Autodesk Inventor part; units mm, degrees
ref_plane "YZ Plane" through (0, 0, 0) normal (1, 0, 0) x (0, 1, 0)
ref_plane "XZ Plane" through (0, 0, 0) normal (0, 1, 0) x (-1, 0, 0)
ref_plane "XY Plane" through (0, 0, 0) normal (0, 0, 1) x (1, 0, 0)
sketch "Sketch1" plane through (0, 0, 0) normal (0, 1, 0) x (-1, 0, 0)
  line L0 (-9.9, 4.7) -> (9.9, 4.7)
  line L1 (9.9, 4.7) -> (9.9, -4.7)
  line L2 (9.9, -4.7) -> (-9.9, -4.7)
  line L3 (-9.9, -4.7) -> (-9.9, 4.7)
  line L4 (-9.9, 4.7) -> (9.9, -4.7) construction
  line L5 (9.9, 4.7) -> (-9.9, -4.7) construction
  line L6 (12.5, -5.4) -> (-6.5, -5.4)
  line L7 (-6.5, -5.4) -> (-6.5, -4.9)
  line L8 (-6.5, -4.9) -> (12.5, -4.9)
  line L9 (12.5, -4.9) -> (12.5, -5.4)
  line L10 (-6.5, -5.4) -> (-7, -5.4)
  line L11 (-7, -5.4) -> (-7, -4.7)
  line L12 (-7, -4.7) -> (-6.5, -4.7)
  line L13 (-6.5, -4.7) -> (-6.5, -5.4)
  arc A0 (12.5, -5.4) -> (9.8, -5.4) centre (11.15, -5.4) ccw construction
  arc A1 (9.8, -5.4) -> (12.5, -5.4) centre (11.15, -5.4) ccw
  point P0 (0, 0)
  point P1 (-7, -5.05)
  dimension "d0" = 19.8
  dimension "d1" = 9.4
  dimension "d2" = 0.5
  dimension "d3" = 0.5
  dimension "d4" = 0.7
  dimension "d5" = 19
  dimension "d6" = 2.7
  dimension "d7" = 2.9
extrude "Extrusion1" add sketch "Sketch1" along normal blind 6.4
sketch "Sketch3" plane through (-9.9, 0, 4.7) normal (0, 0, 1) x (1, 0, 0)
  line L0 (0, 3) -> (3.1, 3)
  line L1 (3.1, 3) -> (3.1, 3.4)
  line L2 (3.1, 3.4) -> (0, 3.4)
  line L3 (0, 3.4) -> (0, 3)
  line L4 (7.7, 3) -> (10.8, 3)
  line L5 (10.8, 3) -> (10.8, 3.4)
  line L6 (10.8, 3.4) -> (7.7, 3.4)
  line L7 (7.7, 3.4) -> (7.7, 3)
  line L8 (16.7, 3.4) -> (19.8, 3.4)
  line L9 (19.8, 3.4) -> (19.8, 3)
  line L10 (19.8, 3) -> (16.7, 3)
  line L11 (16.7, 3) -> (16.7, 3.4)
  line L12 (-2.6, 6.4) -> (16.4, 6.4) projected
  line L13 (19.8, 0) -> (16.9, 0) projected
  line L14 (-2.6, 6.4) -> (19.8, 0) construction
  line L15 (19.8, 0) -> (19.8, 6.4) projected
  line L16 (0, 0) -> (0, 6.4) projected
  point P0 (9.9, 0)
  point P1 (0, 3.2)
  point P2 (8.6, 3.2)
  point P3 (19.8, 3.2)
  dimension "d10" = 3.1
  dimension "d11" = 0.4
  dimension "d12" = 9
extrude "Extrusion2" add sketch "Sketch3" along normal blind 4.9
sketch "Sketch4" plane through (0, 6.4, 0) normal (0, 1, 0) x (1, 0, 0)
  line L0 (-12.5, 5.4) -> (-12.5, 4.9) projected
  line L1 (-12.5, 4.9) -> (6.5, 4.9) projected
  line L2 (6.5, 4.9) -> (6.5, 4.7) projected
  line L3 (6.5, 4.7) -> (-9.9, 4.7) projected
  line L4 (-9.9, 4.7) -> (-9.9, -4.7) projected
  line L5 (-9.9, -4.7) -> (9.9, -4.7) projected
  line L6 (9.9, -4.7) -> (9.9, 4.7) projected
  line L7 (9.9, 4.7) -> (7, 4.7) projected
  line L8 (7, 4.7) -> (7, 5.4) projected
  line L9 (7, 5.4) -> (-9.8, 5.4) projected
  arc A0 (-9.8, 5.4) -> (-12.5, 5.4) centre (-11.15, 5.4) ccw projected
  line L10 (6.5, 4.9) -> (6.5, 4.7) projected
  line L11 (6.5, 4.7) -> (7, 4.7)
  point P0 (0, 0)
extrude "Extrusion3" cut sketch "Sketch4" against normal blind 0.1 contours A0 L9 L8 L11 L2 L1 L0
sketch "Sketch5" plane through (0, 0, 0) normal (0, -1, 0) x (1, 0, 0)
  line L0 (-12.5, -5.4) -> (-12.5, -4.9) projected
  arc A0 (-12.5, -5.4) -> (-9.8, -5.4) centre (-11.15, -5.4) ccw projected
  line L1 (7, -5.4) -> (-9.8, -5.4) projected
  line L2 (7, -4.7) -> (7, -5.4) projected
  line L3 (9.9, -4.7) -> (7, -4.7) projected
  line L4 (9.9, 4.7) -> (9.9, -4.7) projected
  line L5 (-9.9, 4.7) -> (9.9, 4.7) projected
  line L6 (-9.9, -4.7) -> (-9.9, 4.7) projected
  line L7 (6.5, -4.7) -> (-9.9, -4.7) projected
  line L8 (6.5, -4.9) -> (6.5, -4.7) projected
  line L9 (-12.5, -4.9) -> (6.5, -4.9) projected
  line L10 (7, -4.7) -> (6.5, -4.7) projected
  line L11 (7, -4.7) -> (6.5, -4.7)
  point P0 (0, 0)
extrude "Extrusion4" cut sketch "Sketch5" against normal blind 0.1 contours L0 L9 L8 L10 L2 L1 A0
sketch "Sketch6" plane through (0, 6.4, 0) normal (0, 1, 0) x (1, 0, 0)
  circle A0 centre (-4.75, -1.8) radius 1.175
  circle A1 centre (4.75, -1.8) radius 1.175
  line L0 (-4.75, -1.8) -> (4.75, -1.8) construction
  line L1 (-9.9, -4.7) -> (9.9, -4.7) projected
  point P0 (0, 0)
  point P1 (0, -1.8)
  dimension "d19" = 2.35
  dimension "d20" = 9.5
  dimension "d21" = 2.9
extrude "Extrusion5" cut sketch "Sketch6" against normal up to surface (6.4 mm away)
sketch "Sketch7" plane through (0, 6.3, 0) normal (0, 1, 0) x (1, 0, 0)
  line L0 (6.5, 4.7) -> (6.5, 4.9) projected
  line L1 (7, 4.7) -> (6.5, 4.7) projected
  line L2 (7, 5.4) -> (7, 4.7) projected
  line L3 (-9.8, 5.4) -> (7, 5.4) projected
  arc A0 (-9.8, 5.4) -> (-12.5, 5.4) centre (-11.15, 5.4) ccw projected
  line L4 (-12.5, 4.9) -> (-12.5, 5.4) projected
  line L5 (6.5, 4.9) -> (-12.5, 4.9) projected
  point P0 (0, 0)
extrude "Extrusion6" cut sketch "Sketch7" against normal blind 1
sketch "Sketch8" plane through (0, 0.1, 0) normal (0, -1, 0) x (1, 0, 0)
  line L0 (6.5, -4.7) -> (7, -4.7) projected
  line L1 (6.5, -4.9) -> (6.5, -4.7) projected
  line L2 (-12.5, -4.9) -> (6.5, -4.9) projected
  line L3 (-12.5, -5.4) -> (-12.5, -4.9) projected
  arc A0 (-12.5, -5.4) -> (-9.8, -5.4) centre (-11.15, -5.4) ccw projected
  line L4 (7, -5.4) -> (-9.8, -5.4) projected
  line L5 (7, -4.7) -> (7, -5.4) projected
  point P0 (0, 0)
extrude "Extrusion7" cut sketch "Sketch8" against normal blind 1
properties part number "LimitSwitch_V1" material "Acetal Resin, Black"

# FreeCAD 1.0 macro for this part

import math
import FreeCAD as App
import Part
import Sketcher

V = App.Vector


def add_polygon(sketch, points):
    """Adds a closed chain of lines whose ends are joined by coincident constraints."""
    first, n = sketch.GeometryCount, len(points)
    for a, b in zip(points, points[1:] + points[:1]):
        sketch.addGeometry(Part.LineSegment(App.Vector(*a, 0), App.Vector(*b, 0)), False)
    for i in range(n):
        sketch.addConstraint(Sketcher.Constraint("Coincident", first + i, 2, first + (i + 1) % n, 1))

doc = App.newDocument("Part")
body = doc.addObject("PartDesign::Body", "Body")

# Sketch on XZ plane
sketch1 = body.newObject("Sketcher::SketchObject", "Sketch")
sketch1.AttachmentSupport = (doc.getObject("XZ_Plane"), [""])
sketch1.MapMode = "FlatFace"
sketch1.addGeometry([
    Part.LineSegment(V(-9.9, 4.7, 0), V(9.9, 4.7, 0)),  # 0
    Part.LineSegment(V(9.9, 4.7, 0), V(9.9, -4.7, 0)),  # 1
    Part.LineSegment(V(9.9, -4.7, 0), V(7, -4.7, 0)),  # 2
    Part.LineSegment(V(7, -4.7, 0), V(7, -5.4, 0)),  # 3
    Part.LineSegment(V(7, -5.4, 0), V(-9.8, -5.4, 0)),  # 4
    Part.ArcOfCircle(Part.Circle(V(-11.15, -5.4, 0), V(0, 0, 1), 1.35), math.radians(180), math.radians(360)),  # 5
    Part.LineSegment(V(-12.5, -5.4, 0), V(-12.5, -4.9, 0)),  # 6
    Part.LineSegment(V(-12.5, -4.9, 0), V(6.5, -4.9, 0)),  # 7
    Part.LineSegment(V(6.5, -4.9, 0), V(6.5, -4.7, 0)),  # 8
    Part.LineSegment(V(6.5, -4.7, 0), V(-9.9, -4.7, 0)),  # 9
    Part.LineSegment(V(-9.9, -4.7, 0), V(-9.9, 4.7, 0)),  # 10
], False)
sketch1.addConstraint([
    Sketcher.Constraint("Coincident", 0, 2, 1, 1),
    Sketcher.Constraint("Coincident", 1, 2, 2, 1),
    Sketcher.Constraint("Coincident", 2, 2, 3, 1),
    Sketcher.Constraint("Coincident", 3, 2, 4, 1),
    Sketcher.Constraint("Coincident", 4, 2, 5, 2),
    Sketcher.Constraint("Tangent", 5, 1, 6, 1),
    Sketcher.Constraint("Coincident", 6, 2, 7, 1),
    Sketcher.Constraint("Coincident", 7, 2, 8, 1),
    Sketcher.Constraint("Coincident", 8, 2, 9, 1),
    Sketcher.Constraint("Coincident", 9, 2, 10, 1),
    Sketcher.Constraint("Coincident", 10, 2, 0, 1),
    Sketcher.Constraint("Horizontal", 0),
    Sketcher.Constraint("Vertical", 1),
    Sketcher.Constraint("Horizontal", 2),
    Sketcher.Constraint("Vertical", 3),
    Sketcher.Constraint("Horizontal", 4),
    Sketcher.Constraint("Vertical", 6),
    Sketcher.Constraint("Horizontal", 7),
    Sketcher.Constraint("Vertical", 8),
    Sketcher.Constraint("Horizontal", 9),
    Sketcher.Constraint("Vertical", 10),
    Sketcher.Constraint("Symmetric", 0, 2, 9, 2, -1, 1),
    Sketcher.Constraint("Horizontal", 5, 3, 3, 2),
    Sketcher.Constraint("Horizontal", 2, 2, 8, 2),
    Sketcher.Constraint("DistanceX", 7, 1, 7, 2, 19.0),
    Sketcher.Constraint("Radius", 5, 1.35),
    Sketcher.Constraint("DistanceX", 0, 1, 0, 2, 19.8),
    Sketcher.Constraint("DistanceX", 2, 2, 2, 1, 2.9),
    Sketcher.Constraint("DistanceY", 1, 2, 1, 1, 9.4),
    Sketcher.Constraint("DistanceY", 3, 2, 3, 1, 0.7),
    Sketcher.Constraint("DistanceY", 6, 1, 6, 2, 0.5),
    Sketcher.Constraint("DistanceX", 7, 2, 2, 2, 0.5),
])
pad1 = body.newObject("PartDesign::Pad", "Pad")
pad1.Profile = sketch1
pad1.Length = 6.4
pad1.Reversed = True

# Sketch on XY plane
sketch2 = body.newObject("Sketcher::SketchObject", "Sketch001")
sketch2.AttachmentSupport = (doc.getObject("XY_Plane"), [""])
sketch2.MapMode = "FlatFace"
sketch2.AttachmentOffset = App.Placement(V(0, 0, 4.7), App.Rotation())
add_polygon(sketch2, [(-9.9, 3.4), (-9.9, 3), (-6.8, 3), (-6.8, 3.4)])  # lines 0-3
add_polygon(sketch2, [(-2.2, 3.4), (-2.2, 3), (0.9, 3), (0.9, 3.4)])  # lines 4-7
add_polygon(sketch2, [(9.9, 3.4), (6.8, 3.4), (6.8, 3), (9.9, 3)])  # lines 8-11
sketch2.addConstraint([
    Sketcher.Constraint("Vertical", 0),
    Sketcher.Constraint("Horizontal", 1),
    Sketcher.Constraint("Vertical", 2),
    Sketcher.Constraint("Horizontal", 3),
    Sketcher.Constraint("Vertical", 4),
    Sketcher.Constraint("Horizontal", 5),
    Sketcher.Constraint("Vertical", 6),
    Sketcher.Constraint("Horizontal", 7),
    Sketcher.Constraint("Horizontal", 8),
    Sketcher.Constraint("Vertical", 9),
    Sketcher.Constraint("Horizontal", 10),
    Sketcher.Constraint("Vertical", 11),
    Sketcher.Constraint("Symmetric", 2, 2, 8, 2, -2),
    Sketcher.Constraint("Symmetric", 0, 2, 10, 2, -2),
    Sketcher.Constraint("Horizontal", 1, 2, 4, 2),
    Sketcher.Constraint("Horizontal", 3, 2, 6, 2),
    Sketcher.Constraint("Equal", 3, 5),
    Sketcher.Constraint("DistanceX", 1, 1, 1, 2, 3.1),
    Sketcher.Constraint("DistanceY", 0, 2, 0, 1, 0.4),
    Sketcher.Constraint("DistanceX", 7, 2, 8, 2, 9.0),
    Sketcher.Constraint("DistanceY", -1, 1, 0, 2, 3.0),
    Sketcher.Constraint("DistanceX", 0, 2, -1, 1, 9.9),
])
pad2 = body.newObject("PartDesign::Pad", "Pad001")
pad2.Profile = sketch2
pad2.Length = 4.9

# Sketch on XZ plane
sketch3 = body.newObject("Sketcher::SketchObject", "Sketch002")
sketch3.AttachmentSupport = (doc.getObject("XZ_Plane"), [""])
sketch3.MapMode = "FlatFace"
sketch3.AttachmentOffset = App.Placement(V(0, 0, -6.4), App.Rotation())
sketch3.addGeometry([
    Part.ArcOfCircle(Part.Circle(V(-11.15, -5.4, 0), V(0, 0, 1), 1.35), math.radians(180), math.radians(360)),  # 0
    Part.LineSegment(V(-12.5, -5.4, 0), V(-12.5, -4.9, 0)),  # 1
    Part.LineSegment(V(-12.5, -4.9, 0), V(6.5, -4.9, 0)),  # 2
    Part.LineSegment(V(6.5, -4.9, 0), V(6.5, -4.7, 0)),  # 3
    Part.LineSegment(V(6.5, -4.7, 0), V(7, -4.7, 0)),  # 4
    Part.LineSegment(V(7, -4.7, 0), V(7, -5.4, 0)),  # 5
    Part.LineSegment(V(7, -5.4, 0), V(-9.8, -5.4, 0)),  # 6
], False)
sketch3.addConstraint([
    Sketcher.Constraint("Tangent", 0, 1, 1, 1),
    Sketcher.Constraint("Coincident", 1, 2, 2, 1),
    Sketcher.Constraint("Coincident", 2, 2, 3, 1),
    Sketcher.Constraint("Coincident", 3, 2, 4, 1),
    Sketcher.Constraint("Coincident", 4, 2, 5, 1),
    Sketcher.Constraint("Coincident", 5, 2, 6, 1),
    Sketcher.Constraint("Coincident", 6, 2, 0, 2),
    Sketcher.Constraint("Vertical", 1),
    Sketcher.Constraint("Horizontal", 2),
    Sketcher.Constraint("Vertical", 3),
    Sketcher.Constraint("Horizontal", 4),
    Sketcher.Constraint("Vertical", 5),
    Sketcher.Constraint("Horizontal", 6),
    Sketcher.Constraint("Horizontal", 0, 1, 5, 2),
    Sketcher.Constraint("Equal", 4, 1),
    Sketcher.Constraint("DistanceX", 2, 1, 2, 2, 19.0),
    Sketcher.Constraint("Radius", 0, 1.35),
    Sketcher.Constraint("DistanceX", 4, 1, 4, 2, 0.5),
    Sketcher.Constraint("DistanceY", 3, 1, 3, 2, 0.2),
    Sketcher.Constraint("DistanceX", -1, 1, 4, 2, 7.0),
    Sketcher.Constraint("DistanceY", 0, 3, -1, 1, 5.4),
])
pocket1 = body.newObject("PartDesign::Pocket", "Pocket")
pocket1.Profile = sketch3
pocket1.Length = 0.1
pocket1.Reversed = True

# Sketch on XZ plane
sketch4 = body.newObject("Sketcher::SketchObject", "Sketch003")
sketch4.AttachmentSupport = (doc.getObject("XZ_Plane"), [""])
sketch4.MapMode = "FlatFace"
sketch4.addGeometry([
    Part.LineSegment(V(-12.5, -4.9, 0), V(-12.5, -5.4, 0)),  # 0
    Part.ArcOfCircle(Part.Circle(V(-11.15, -5.4, 0), V(0, 0, 1), 1.35), math.radians(180), math.radians(360)),  # 1
    Part.LineSegment(V(-9.8, -5.4, 0), V(7, -5.4, 0)),  # 2
    Part.LineSegment(V(7, -5.4, 0), V(7, -4.7, 0)),  # 3
    Part.LineSegment(V(7, -4.7, 0), V(6.5, -4.7, 0)),  # 4
    Part.LineSegment(V(6.5, -4.7, 0), V(6.5, -4.9, 0)),  # 5
    Part.LineSegment(V(6.5, -4.9, 0), V(-12.5, -4.9, 0)),  # 6
], False)
sketch4.addConstraint([
    Sketcher.Constraint("Tangent", 0, 2, 1, 1),
    Sketcher.Constraint("Coincident", 1, 2, 2, 1),
    Sketcher.Constraint("Coincident", 2, 2, 3, 1),
    Sketcher.Constraint("Coincident", 3, 2, 4, 1),
    Sketcher.Constraint("Coincident", 4, 2, 5, 1),
    Sketcher.Constraint("Coincident", 5, 2, 6, 1),
    Sketcher.Constraint("Coincident", 6, 2, 0, 1),
    Sketcher.Constraint("Vertical", 0),
    Sketcher.Constraint("Horizontal", 2),
    Sketcher.Constraint("Vertical", 3),
    Sketcher.Constraint("Horizontal", 4),
    Sketcher.Constraint("Vertical", 5),
    Sketcher.Constraint("Horizontal", 6),
    Sketcher.Constraint("Horizontal", 0, 2, 1, 2),
    Sketcher.Constraint("Equal", 4, 0),
    Sketcher.Constraint("DistanceX", 6, 2, 6, 1, 19.0),
    Sketcher.Constraint("Radius", 1, 1.35),
    Sketcher.Constraint("DistanceX", 2, 1, 2, 2, 16.8),
    Sketcher.Constraint("DistanceY", 3, 1, 3, 2, 0.7),
    Sketcher.Constraint("DistanceX", -1, 1, 2, 2, 7.0),
    Sketcher.Constraint("DistanceY", 1, 3, -1, 1, 5.4),
])
pocket2 = body.newObject("PartDesign::Pocket", "Pocket001")
pocket2.Profile = sketch4
pocket2.Length = 0.1

# Sketch on XZ plane
sketch5 = body.newObject("Sketcher::SketchObject", "Sketch004")
sketch5.AttachmentSupport = (doc.getObject("XZ_Plane"), [""])
sketch5.MapMode = "FlatFace"
sketch5.AttachmentOffset = App.Placement(V(0, 0, -6.4), App.Rotation())
sketch5.addGeometry([
    Part.Circle(V(-4.8, 1.8, 0), V(0, 0, 1), 1.2),
    Part.Circle(V(4.8, 1.8, 0), V(0, 0, 1), 1.2),
], False)
sketch5.addConstraint([
    Sketcher.Constraint("Equal", 0, 1),
    Sketcher.Constraint("Symmetric", 0, 3, 1, 3, -2),
    Sketcher.Constraint("Diameter", 0, 2.35),
    Sketcher.Constraint("DistanceX", 0, 3, 1, 3, 9.5),
    Sketcher.Constraint("DistanceY", -1, 1, 0, 3, 1.8),
])
pocket3 = body.newObject("PartDesign::Pocket", "Pocket002")
pocket3.Profile = sketch5
pocket3.Length = 6.4
pocket3.Reversed = True

# Sketch on XZ plane
sketch6 = body.newObject("Sketcher::SketchObject", "Sketch005")
sketch6.AttachmentSupport = (doc.getObject("XZ_Plane"), [""])
sketch6.MapMode = "FlatFace"
sketch6.AttachmentOffset = App.Placement(V(0, 0, -6.3), App.Rotation())
sketch6.addGeometry([
    Part.LineSegment(V(6.5, -4.9, 0), V(6.5, -4.7, 0)),  # 0
    Part.LineSegment(V(6.5, -4.7, 0), V(7, -4.7, 0)),  # 1
    Part.LineSegment(V(7, -4.7, 0), V(7, -5.4, 0)),  # 2
    Part.LineSegment(V(7, -5.4, 0), V(-9.8, -5.4, 0)),  # 3
    Part.ArcOfCircle(Part.Circle(V(-11.15, -5.4, 0), V(0, 0, 1), 1.35), math.radians(180), math.radians(360)),  # 4
    Part.LineSegment(V(-12.5, -5.4, 0), V(-12.5, -4.9, 0)),  # 5
    Part.LineSegment(V(-12.5, -4.9, 0), V(6.5, -4.9, 0)),  # 6
], False)
sketch6.addConstraint([
    Sketcher.Constraint("Coincident", 0, 2, 1, 1),
    Sketcher.Constraint("Coincident", 1, 2, 2, 1),
    Sketcher.Constraint("Coincident", 2, 2, 3, 1),
    Sketcher.Constraint("Coincident", 3, 2, 4, 2),
    Sketcher.Constraint("Tangent", 4, 1, 5, 1),
    Sketcher.Constraint("Coincident", 5, 2, 6, 1),
    Sketcher.Constraint("Coincident", 6, 2, 0, 1),
    Sketcher.Constraint("Vertical", 0),
    Sketcher.Constraint("Horizontal", 1),
    Sketcher.Constraint("Vertical", 2),
    Sketcher.Constraint("Horizontal", 3),
    Sketcher.Constraint("Vertical", 5),
    Sketcher.Constraint("Horizontal", 6),
    Sketcher.Constraint("Horizontal", 4, 3, 2, 2),
    Sketcher.Constraint("Equal", 1, 5),
    Sketcher.Constraint("DistanceX", 6, 1, 6, 2, 19.0),
    Sketcher.Constraint("Radius", 4, 1.35),
    Sketcher.Constraint("DistanceX", 1, 1, 1, 2, 0.5),
    Sketcher.Constraint("DistanceY", 0, 1, 0, 2, 0.2),
    Sketcher.Constraint("DistanceX", -1, 1, 1, 2, 7.0),
    Sketcher.Constraint("DistanceY", 4, 3, -1, 1, 5.4),
])
pocket4 = body.newObject("PartDesign::Pocket", "Pocket003")
pocket4.Profile = sketch6
pocket4.Length = 1
pocket4.Reversed = True

# Sketch on XZ plane
sketch7 = body.newObject("Sketcher::SketchObject", "Sketch006")
sketch7.AttachmentSupport = (doc.getObject("XZ_Plane"), [""])
sketch7.MapMode = "FlatFace"
sketch7.AttachmentOffset = App.Placement(V(0, 0, -0.1), App.Rotation())
sketch7.addGeometry([
    Part.LineSegment(V(7, -4.7, 0), V(6.5, -4.7, 0)),  # 0
    Part.LineSegment(V(6.5, -4.7, 0), V(6.5, -4.9, 0)),  # 1
    Part.LineSegment(V(6.5, -4.9, 0), V(-12.5, -4.9, 0)),  # 2
    Part.LineSegment(V(-12.5, -4.9, 0), V(-12.5, -5.4, 0)),  # 3
    Part.ArcOfCircle(Part.Circle(V(-11.15, -5.4, 0), V(0, 0, 1), 1.35), math.radians(180), math.radians(360)),  # 4
    Part.LineSegment(V(-9.8, -5.4, 0), V(7, -5.4, 0)),  # 5
    Part.LineSegment(V(7, -5.4, 0), V(7, -4.7, 0)),  # 6
], False)
sketch7.addConstraint([
    Sketcher.Constraint("Coincident", 0, 2, 1, 1),
    Sketcher.Constraint("Coincident", 1, 2, 2, 1),
    Sketcher.Constraint("Coincident", 2, 2, 3, 1),
    Sketcher.Constraint("Tangent", 3, 2, 4, 1),
    Sketcher.Constraint("Coincident", 4, 2, 5, 1),
    Sketcher.Constraint("Coincident", 5, 2, 6, 1),
    Sketcher.Constraint("Coincident", 6, 2, 0, 1),
    Sketcher.Constraint("Horizontal", 0),
    Sketcher.Constraint("Vertical", 1),
    Sketcher.Constraint("Horizontal", 2),
    Sketcher.Constraint("Vertical", 3),
    Sketcher.Constraint("Horizontal", 5),
    Sketcher.Constraint("Vertical", 6),
    Sketcher.Constraint("Horizontal", 3, 2, 4, 2),
    Sketcher.Constraint("Equal", 0, 3),
    Sketcher.Constraint("DistanceX", 2, 2, 2, 1, 19.0),
    Sketcher.Constraint("Radius", 4, 1.35),
    Sketcher.Constraint("DistanceX", 0, 2, 0, 1, 0.5),
    Sketcher.Constraint("DistanceY", 1, 2, 1, 1, 0.2),
    Sketcher.Constraint("DistanceX", -1, 1, 5, 2, 7.0),
    Sketcher.Constraint("DistanceY", 4, 3, -1, 1, 5.4),
])
pocket5 = body.newObject("PartDesign::Pocket", "Pocket004")
pocket5.Profile = sketch7
pocket5.Length = 1

doc.recompute()
